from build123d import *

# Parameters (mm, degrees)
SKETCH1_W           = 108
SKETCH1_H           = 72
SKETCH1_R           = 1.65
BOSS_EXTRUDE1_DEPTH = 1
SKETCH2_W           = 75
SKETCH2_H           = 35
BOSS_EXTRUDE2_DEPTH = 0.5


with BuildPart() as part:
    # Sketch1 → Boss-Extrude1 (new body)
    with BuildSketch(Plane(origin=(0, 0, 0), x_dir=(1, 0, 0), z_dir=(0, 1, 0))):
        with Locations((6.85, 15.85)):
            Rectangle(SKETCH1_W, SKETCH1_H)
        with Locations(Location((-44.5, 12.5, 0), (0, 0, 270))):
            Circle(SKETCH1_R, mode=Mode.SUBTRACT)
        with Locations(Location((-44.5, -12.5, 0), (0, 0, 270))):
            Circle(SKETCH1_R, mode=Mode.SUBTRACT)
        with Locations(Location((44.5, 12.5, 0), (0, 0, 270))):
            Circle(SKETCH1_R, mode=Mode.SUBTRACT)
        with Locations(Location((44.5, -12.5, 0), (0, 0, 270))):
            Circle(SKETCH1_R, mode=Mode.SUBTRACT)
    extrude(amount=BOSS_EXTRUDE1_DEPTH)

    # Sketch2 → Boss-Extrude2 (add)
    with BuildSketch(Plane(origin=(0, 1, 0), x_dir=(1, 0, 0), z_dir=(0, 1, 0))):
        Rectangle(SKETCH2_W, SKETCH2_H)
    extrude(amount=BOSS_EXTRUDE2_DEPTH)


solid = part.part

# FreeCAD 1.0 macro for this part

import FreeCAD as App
import Part
import Sketcher

V = App.Vector
Q = App.Units.Quantity


def add_polygon(sketch, points):
    """Adds a closed chain of lines whose ends are joined by coincident constraints."""
    first, n = sketch.GeometryCount, len(points)
    for a, b in zip(points, points[1:] + points[:1]):
        sketch.addGeometry(Part.LineSegment(App.Vector(*a, 0), App.Vector(*b, 0)), False)
    for i in range(n):
        sketch.addConstraint(Sketcher.Constraint("Coincident", first + i, 2, first + (i + 1) % n, 1))

doc = App.newDocument("Part")
body = doc.addObject("PartDesign::Body", "Body")

sketch1 = doc.addObject("Sketcher::SketchObject", "Sketch")
body.addObject(sketch1)
sketch1.AttachmentSupport = (doc.XZ_Plane, [""])
sketch1.MapMode = "FlatFace"
add_polygon(sketch1, [(-47.1, -51.9), (-47.1, 20.1), (60.9, 20.1), (60.9, -51.9)])
sketch1.addGeometry(Part.Circle(V(-44.5, 12.5, 0), V(0, 0, 1), 1.6), False)
sketch1.addGeometry(Part.Circle(V(44.5, 12.5, 0), V(0, 0, 1), 1.6), False)
sketch1.addGeometry(Part.Circle(V(-44.5, -12.5, 0), V(0, 0, 1), 1.6), False)
sketch1.addGeometry(Part.Circle(V(44.5, -12.5, 0), V(0, 0, 1), 1.6), False)
sketch1.addConstraint([
    Sketcher.Constraint("Vertical", 0),
    Sketcher.Constraint("Horizontal", 1),
    Sketcher.Constraint("Vertical", 2),
    Sketcher.Constraint("Horizontal", 3),
    Sketcher.Constraint("Equal", 4, 5),
    Sketcher.Constraint("Equal", 5, 6),
    Sketcher.Constraint("Equal", 6, 7),
    Sketcher.Constraint("Symmetric", 5, 3, 6, 3, -1, 1),
    Sketcher.Constraint("Symmetric", 4, 3, 7, 3, -1, 1),
    Sketcher.Constraint("Symmetric", 4, 3, 5, 3, -2),
    Sketcher.Constraint("Diameter", 4, Q("3.3 mm")),
    Sketcher.Constraint("DistanceX", 1, 1, 1, 2, Q("108 mm")),
    Sketcher.Constraint("DistanceY", 0, 1, 0, 2, Q("72 mm")),
    Sketcher.Constraint("DistanceX", 4, 3, 5, 3, Q("89 mm")),
    Sketcher.Constraint("DistanceY", 6, 3, 4, 3, Q("25 mm")),
    Sketcher.Constraint("DistanceX", 0, 2, -1, 1, Q("47.15 mm")),
    Sketcher.Constraint("DistanceY", -1, 1, 0, 2, Q("20.15 mm")),
])
pad1 = doc.addObject("PartDesign::Pad", "Pad")
body.addObject(pad1)
pad1.Profile = sketch1
pad1.Length = 1
pad1.Reversed = True

sketch2 = doc.addObject("Sketcher::SketchObject", "Sketch001")
body.addObject(sketch2)
sketch2.AttachmentSupport = (doc.XZ_Plane, [""])
sketch2.MapMode = "FlatFace"
sketch2.AttachmentOffset = App.Placement(V(0, 0, -1), App.Rotation())
add_polygon(sketch2, [(-38, -18), (-38, 18), (38, 18), (38, -18)])
sketch2.addConstraint([
    Sketcher.Constraint("Vertical", 0),
    Sketcher.Constraint("Horizontal", 1),
    Sketcher.Constraint("Vertical", 2),
    Sketcher.Constraint("Horizontal", 3),
    Sketcher.Constraint("Symmetric", 0, 2, 2, 2, -1, 1),
    Sketcher.Constraint("DistanceX", 1, 1, 1, 2, Q("75 mm")),
    Sketcher.Constraint("DistanceY", 0, 1, 0, 2, Q("35 mm")),
])
pad2 = doc.addObject("PartDesign::Pad", "Pad001")
body.addObject(pad2)
pad2.Profile = sketch2
pad2.Length = 0.5
pad2.Reversed = True

doc.recompute()
